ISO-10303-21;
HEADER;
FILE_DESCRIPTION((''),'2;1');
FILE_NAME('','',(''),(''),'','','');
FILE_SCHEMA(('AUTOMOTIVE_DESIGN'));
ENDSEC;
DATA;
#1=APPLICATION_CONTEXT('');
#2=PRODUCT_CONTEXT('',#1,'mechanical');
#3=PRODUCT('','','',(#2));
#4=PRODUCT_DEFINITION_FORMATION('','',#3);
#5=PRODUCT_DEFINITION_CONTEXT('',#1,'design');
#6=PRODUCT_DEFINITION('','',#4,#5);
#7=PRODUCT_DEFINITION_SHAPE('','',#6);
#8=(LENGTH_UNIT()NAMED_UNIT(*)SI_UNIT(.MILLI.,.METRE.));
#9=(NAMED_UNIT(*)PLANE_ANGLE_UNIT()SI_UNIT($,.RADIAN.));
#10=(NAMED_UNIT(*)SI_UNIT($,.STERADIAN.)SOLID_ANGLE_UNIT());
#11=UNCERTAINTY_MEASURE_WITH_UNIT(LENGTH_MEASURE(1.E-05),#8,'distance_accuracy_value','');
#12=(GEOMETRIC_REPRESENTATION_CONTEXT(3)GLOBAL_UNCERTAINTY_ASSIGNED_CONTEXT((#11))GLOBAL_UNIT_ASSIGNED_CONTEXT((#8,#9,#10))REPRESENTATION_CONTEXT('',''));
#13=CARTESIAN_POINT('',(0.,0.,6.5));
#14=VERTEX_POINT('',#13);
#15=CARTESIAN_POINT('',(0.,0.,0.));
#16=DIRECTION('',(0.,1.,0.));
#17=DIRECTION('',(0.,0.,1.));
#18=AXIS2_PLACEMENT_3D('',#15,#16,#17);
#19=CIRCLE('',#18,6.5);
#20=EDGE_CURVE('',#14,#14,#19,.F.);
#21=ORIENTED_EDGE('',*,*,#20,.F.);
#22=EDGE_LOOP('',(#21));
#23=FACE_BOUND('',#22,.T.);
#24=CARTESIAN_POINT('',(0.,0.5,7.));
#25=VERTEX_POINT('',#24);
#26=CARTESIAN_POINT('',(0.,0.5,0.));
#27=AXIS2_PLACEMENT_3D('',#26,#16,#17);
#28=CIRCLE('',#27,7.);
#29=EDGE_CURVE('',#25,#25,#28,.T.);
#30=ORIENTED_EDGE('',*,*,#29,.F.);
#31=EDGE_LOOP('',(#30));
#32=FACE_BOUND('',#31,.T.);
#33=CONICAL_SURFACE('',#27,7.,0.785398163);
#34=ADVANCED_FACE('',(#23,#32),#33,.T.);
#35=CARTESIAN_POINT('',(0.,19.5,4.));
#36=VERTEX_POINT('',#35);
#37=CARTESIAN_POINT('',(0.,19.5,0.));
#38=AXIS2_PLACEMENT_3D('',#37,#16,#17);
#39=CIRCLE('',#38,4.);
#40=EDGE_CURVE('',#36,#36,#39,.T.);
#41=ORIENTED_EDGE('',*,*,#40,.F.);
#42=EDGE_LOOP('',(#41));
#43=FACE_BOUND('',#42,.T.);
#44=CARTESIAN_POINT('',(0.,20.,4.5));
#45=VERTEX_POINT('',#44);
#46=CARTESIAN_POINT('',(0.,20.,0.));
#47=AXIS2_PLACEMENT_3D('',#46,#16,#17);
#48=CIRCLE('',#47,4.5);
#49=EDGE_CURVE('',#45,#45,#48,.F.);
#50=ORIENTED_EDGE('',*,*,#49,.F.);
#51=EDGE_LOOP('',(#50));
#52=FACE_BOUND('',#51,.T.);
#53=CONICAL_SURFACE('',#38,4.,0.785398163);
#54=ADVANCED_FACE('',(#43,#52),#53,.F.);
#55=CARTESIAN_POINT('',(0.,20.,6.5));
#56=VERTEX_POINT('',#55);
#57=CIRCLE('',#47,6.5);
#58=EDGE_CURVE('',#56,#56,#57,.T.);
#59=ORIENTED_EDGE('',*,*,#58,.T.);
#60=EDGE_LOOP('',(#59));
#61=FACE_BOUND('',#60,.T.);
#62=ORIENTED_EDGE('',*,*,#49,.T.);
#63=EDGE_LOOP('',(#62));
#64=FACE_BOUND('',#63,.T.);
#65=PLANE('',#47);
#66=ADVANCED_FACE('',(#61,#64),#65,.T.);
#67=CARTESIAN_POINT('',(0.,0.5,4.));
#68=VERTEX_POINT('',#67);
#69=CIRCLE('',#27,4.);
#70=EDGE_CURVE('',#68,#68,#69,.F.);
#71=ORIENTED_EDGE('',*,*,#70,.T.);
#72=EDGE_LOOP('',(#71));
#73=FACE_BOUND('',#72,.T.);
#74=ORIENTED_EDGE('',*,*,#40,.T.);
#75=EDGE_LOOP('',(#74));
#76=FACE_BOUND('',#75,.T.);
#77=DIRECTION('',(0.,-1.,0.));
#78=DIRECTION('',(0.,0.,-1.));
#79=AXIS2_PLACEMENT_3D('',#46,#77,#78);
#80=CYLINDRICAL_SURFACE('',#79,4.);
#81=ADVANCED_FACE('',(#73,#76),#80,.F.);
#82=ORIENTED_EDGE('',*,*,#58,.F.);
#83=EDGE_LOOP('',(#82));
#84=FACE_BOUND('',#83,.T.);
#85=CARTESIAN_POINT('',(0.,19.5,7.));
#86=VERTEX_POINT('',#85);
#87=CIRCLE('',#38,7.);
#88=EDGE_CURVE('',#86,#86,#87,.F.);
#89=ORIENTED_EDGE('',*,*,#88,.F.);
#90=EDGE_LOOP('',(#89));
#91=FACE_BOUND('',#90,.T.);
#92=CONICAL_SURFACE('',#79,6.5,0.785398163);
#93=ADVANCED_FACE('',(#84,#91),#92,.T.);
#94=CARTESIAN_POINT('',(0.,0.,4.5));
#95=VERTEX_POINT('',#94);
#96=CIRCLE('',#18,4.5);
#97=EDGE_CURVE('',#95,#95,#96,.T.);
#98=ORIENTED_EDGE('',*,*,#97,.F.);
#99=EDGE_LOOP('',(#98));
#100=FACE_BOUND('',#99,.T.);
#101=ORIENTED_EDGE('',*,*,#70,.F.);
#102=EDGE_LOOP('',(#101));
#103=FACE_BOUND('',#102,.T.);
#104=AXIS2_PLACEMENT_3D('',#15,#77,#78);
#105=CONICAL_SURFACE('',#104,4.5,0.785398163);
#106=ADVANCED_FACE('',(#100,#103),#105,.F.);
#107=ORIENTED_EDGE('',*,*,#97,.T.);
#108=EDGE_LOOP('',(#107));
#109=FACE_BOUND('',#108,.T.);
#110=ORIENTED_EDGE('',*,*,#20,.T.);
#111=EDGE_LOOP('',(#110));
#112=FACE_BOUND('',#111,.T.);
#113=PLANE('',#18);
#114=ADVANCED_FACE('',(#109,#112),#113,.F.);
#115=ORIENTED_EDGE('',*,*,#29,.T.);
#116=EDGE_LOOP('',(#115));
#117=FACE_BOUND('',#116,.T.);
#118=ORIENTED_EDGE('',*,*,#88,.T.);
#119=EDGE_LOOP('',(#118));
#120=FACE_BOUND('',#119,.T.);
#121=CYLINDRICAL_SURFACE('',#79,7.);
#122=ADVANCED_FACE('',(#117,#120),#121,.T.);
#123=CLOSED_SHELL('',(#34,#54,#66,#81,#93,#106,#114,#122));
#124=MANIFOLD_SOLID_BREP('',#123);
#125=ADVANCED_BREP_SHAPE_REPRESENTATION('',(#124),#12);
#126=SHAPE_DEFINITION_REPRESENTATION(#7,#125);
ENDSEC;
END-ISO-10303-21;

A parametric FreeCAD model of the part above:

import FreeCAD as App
import Part
import Sketcher

V = App.Vector
Q = App.Units.Quantity


def edges_at(feature, points):
    """Names of the edges that pass closest to the given points."""
    edges = feature.Shape.Edges
    near = lambda p: min(range(len(edges)), key=lambda i: edges[i].distToShape(Part.Vertex(*p))[0])
    return sorted({f"Edge{near(p) + 1}" for p in points})

doc = App.newDocument("Part")
body = doc.addObject("PartDesign::Body", "Body")

# Sketch on XZ plane
sketch1 = body.newObject("Sketcher::SketchObject", "Sketch")
sketch1.AttachmentSupport = (doc.getObject("XZ_Plane"), [""])
sketch1.MapMode = "FlatFace"
sketch1.addGeometry([
    Part.Circle(V(0, 0, 0), V(0, 0, 1), 7),
    Part.Circle(V(0, 0, 0), V(0, 0, 1), 4),
], False)
sketch1.addConstraint([
    Sketcher.Constraint("Coincident", 0, 3, -1, 1),
    Sketcher.Constraint("Coincident", 1, 3, -1, 1),
    Sketcher.Constraint("Diameter", 0, Q("14 mm")),
    Sketcher.Constraint("Diameter", 1, Q("8 mm")),
])
pad1 = body.newObject("PartDesign::Pad", "Pad")
pad1.Profile = sketch1
pad1.Length = 20
pad1.Reversed = True
doc.recompute()

chamfer = body.newObject("PartDesign::Chamfer", "Chamfer")
chamfer.Base = (pad1, edges_at(pad1, [
    (-7, 0, 0),
    (-7, 20, 0),
    (-4, 0, 0),
    (-4, 20, 0),
]))
chamfer.Size = 0.5

doc.recompute()
